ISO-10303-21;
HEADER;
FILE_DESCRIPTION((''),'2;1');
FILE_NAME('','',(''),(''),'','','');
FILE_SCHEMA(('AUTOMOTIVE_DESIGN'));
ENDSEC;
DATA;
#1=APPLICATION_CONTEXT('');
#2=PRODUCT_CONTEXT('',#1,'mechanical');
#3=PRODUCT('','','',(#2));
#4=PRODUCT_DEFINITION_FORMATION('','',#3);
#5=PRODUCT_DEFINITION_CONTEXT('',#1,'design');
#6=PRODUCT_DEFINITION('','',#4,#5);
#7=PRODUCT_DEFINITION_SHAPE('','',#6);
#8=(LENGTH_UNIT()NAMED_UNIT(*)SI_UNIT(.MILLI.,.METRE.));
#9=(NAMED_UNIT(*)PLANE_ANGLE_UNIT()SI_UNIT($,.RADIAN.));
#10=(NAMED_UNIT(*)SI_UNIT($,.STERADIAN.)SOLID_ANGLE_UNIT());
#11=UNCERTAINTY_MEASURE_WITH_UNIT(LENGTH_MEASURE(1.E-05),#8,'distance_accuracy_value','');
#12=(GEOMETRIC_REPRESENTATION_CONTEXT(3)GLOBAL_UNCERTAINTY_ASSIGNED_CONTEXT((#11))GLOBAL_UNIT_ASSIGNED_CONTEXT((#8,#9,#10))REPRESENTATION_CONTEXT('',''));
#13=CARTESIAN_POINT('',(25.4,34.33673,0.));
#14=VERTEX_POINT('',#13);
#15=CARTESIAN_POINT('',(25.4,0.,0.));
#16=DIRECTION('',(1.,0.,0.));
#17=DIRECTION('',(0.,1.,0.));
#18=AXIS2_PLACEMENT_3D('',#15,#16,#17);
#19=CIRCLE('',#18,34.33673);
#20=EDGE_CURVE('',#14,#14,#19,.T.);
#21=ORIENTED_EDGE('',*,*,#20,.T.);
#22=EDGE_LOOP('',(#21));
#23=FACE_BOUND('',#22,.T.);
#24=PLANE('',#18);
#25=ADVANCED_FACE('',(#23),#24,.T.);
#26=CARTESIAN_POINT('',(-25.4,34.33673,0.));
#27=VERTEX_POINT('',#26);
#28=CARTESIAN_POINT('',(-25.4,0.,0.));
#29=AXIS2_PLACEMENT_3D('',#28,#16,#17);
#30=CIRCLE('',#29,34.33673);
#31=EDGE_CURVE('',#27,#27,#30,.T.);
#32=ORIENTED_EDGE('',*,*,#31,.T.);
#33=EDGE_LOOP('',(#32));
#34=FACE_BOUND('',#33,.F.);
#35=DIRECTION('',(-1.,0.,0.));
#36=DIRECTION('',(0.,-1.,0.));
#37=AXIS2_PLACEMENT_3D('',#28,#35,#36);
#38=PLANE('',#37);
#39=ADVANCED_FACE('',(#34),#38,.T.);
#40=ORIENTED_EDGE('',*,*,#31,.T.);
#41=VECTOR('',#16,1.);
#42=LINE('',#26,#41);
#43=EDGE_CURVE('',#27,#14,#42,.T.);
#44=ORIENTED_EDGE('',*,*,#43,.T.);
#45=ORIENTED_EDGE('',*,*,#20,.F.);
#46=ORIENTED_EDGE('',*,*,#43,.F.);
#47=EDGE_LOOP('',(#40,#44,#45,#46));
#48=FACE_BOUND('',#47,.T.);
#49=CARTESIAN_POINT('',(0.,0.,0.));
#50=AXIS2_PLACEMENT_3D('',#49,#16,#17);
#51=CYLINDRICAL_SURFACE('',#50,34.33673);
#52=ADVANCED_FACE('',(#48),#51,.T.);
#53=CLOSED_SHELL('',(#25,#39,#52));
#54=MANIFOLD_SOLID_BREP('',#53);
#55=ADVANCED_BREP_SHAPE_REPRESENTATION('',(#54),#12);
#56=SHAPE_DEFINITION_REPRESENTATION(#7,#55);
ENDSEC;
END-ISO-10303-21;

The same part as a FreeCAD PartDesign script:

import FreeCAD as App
import Part
import Sketcher

V = App.Vector
Q = App.Units.Quantity

doc = App.newDocument("Part")
body = doc.addObject("PartDesign::Body", "Body")

sketch1 = body.newObject("Sketcher::SketchObject", "Sketch")
sketch1.AttachmentSupport = (doc.getObject("YZ_Plane"), [""])
sketch1.MapMode = "FlatFace"
sketch1.addGeometry(Part.Circle(V(0, 0, 0), V(0, 0, 1), 34), False)
sketch1.addConstraint(Sketcher.Constraint("Coincident", 0, 3, -1, 1))
sketch1.addConstraint(Sketcher.Constraint("Diameter", 0, Q("68.67346 mm")))
pad1 = body.newObject("PartDesign::Pad", "Pad")
pad1.Profile = sketch1
pad1.Length = Q("1 in")
body2 = doc.addObject("PartDesign::Body", "Body001")
doc.recompute()

body2.BaseFeature = body
doc.recompute()

mirroring = doc.addObject("Part::Mirroring", "Mirroring")
mirroring.Source = body
mirroring.Base = V(0, 0, 0)
mirroring.Normal = V(1, 0, 0)
body3 = doc.addObject("PartDesign::Body", "Body002")
body3.BaseFeature = mirroring
boolean = body2.newObject("PartDesign::Boolean", "Boolean")
boolean.Type = "Fuse"
boolean.addObjects([body3])
doc.recompute()
mirroring.Visibility = False

doc.recompute()
